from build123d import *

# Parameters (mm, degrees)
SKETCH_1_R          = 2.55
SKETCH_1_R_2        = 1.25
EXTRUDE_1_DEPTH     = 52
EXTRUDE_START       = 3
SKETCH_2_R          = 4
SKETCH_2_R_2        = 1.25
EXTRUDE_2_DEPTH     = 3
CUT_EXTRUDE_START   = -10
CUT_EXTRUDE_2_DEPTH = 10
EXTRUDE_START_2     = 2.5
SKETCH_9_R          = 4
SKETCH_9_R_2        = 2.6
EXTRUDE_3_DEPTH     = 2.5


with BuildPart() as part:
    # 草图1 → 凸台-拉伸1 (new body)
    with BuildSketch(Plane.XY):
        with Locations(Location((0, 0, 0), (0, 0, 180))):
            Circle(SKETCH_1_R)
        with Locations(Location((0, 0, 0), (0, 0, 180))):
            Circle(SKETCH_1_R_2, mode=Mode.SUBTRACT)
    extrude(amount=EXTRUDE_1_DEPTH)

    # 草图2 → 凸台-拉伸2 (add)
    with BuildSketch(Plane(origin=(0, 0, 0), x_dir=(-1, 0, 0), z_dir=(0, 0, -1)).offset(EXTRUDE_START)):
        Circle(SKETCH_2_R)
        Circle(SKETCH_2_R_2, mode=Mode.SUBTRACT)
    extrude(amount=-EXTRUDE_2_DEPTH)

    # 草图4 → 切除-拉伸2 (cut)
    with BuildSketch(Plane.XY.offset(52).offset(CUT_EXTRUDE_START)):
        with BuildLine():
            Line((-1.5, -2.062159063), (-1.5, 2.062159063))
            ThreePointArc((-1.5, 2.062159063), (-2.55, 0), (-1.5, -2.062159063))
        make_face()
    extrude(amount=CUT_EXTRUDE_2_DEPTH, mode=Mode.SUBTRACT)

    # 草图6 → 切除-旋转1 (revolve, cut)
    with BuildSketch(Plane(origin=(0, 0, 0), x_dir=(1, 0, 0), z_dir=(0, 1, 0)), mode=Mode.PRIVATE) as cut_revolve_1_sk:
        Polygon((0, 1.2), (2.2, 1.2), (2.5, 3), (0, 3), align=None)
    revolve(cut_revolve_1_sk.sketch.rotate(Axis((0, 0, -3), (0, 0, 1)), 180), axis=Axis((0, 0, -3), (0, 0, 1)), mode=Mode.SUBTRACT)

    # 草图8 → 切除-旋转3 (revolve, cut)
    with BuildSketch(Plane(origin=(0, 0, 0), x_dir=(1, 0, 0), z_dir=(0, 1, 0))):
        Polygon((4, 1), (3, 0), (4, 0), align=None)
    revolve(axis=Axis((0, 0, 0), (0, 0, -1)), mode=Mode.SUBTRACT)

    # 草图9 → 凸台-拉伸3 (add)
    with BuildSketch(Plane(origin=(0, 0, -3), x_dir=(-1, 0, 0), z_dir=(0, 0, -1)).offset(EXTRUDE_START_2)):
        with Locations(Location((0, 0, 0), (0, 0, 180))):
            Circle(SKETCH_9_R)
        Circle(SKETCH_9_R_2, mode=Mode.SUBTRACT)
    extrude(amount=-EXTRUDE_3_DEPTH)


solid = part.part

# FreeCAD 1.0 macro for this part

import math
import FreeCAD as App
import Part
import Sketcher

V = App.Vector


def add_polygon(sketch, points):
    """Adds a closed chain of lines whose ends are joined by coincident constraints."""
    first, n = sketch.GeometryCount, len(points)
    for a, b in zip(points, points[1:] + points[:1]):
        sketch.addGeometry(Part.LineSegment(App.Vector(*a, 0), App.Vector(*b, 0)), False)
    for i in range(n):
        sketch.addConstraint(Sketcher.Constraint("Coincident", first + i, 2, first + (i + 1) % n, 1))

doc = App.newDocument("Part")
body = doc.addObject("PartDesign::Body", "Body")

# Sketch on XY plane
sketch1 = body.newObject("Sketcher::SketchObject", "Sketch")
sketch1.AttachmentSupport = (doc.getObject("XY_Plane"), [""])
sketch1.MapMode = "FlatFace"
sketch1.addGeometry([
    Part.Circle(V(0, 0, 0), V(0, 0, 1), 2.5),
    Part.Circle(V(0, 0, 0), V(0, 0, 1), 1.2),
], False)
sketch1.addConstraint([
    Sketcher.Constraint("Coincident", 0, 3, -1, 1),
    Sketcher.Constraint("Coincident", 1, 3, -1, 1),
    Sketcher.Constraint("Diameter", 0, 5.1),
    Sketcher.Constraint("Diameter", 1, 2.5),
])
pad1 = body.newObject("PartDesign::Pad", "Pad")
pad1.Profile = sketch1
pad1.Length = 52

# Sketch on XY plane
sketch2 = body.newObject("Sketcher::SketchObject", "Sketch001")
sketch2.AttachmentSupport = (doc.getObject("XY_Plane"), [""])
sketch2.MapMode = "FlatFace"
sketch2.AttachmentOffset = App.Placement(V(0, 0, -3), App.Rotation())
sketch2.addGeometry([
    Part.Circle(V(0, 0, 0), V(0, 0, 1), 4),
    Part.Circle(V(0, 0, 0), V(0, 0, 1), 1.2),
], False)
sketch2.addConstraint([
    Sketcher.Constraint("Coincident", 0, 3, -1, 1),
    Sketcher.Constraint("Coincident", 1, 3, -1, 1),
    Sketcher.Constraint("Diameter", 0, 8.0),
    Sketcher.Constraint("Diameter", 1, 2.5),
])
pad2 = body.newObject("PartDesign::Pad", "Pad001")
pad2.Profile = sketch2
pad2.Length = 3

# Sketch on XY plane
sketch3 = body.newObject("Sketcher::SketchObject", "Sketch002")
sketch3.AttachmentSupport = (doc.getObject("XY_Plane"), [""])
sketch3.MapMode = "FlatFace"
sketch3.AttachmentOffset = App.Placement(V(0, 0, 42), App.Rotation())
sketch3.addGeometry([
    Part.LineSegment(V(-1.5, -2.1, 0), V(-1.5, 2.1, 0)),
    Part.ArcOfCircle(Part.Circle(V(0, 0, 0), V(0, 0, 1), 2.6), math.radians(126), math.radians(234)),
], False)
sketch3.addConstraint([
    Sketcher.Constraint("Coincident", 0, 1, 1, 2),
    Sketcher.Constraint("Coincident", 1, 1, 0, 2),
    Sketcher.Constraint("Vertical", 0),
    Sketcher.Constraint("Coincident", 1, 3, -1, 1),
    Sketcher.Constraint("Radius", 1, 2.55),
    Sketcher.Constraint("DistanceX", 0, 1, -1, 1, 1.5),
])
pocket1 = body.newObject("PartDesign::Pocket", "Pocket")
pocket1.Profile = sketch3
pocket1.Length = 10
pocket1.Reversed = True

# Sketch on XZ plane
sketch4 = body.newObject("Sketcher::SketchObject", "Sketch003")
sketch4.AttachmentSupport = (doc.getObject("XZ_Plane"), [""])
sketch4.MapMode = "FlatFace"
add_polygon(sketch4, [(0, -1.2), (2.2, -1.2), (2.5, -3), (0, -3)])  # lines 0-3
sketch4.addConstraint([
    Sketcher.Constraint("Horizontal", 0),
    Sketcher.Constraint("Horizontal", 2),
    Sketcher.Constraint("Vertical", 3),
    Sketcher.Constraint("PointOnObject", 2, 2, -2),
    Sketcher.Constraint("DistanceX", 0, 1, 0, 2, 2.2),
    Sketcher.Constraint("DistanceX", 2, 2, 2, 1, 2.5),
    Sketcher.Constraint("DistanceY", 3, 1, 3, 2, 1.8),
    Sketcher.Constraint("DistanceY", 1, 2, -1, 1, 3.0),
])
groove = body.newObject("PartDesign::Groove", "Groove")
groove.Profile = sketch4
groove.ReferenceAxis = (sketch4, ["V_Axis"])
groove.Angle = 360

# Sketch on XZ plane
sketch5 = body.newObject("Sketcher::SketchObject", "Sketch004")
sketch5.AttachmentSupport = (doc.getObject("XZ_Plane"), [""])
sketch5.MapMode = "FlatFace"
add_polygon(sketch5, [(4, -1), (3, 0), (4, 0)])  # lines 0-2
sketch5.addConstraint([
    Sketcher.Constraint("Horizontal", 1),
    Sketcher.Constraint("Vertical", 2),
    Sketcher.Constraint("PointOnObject", 0, 2, -1),
    Sketcher.Constraint("Equal", 1, 2),
    Sketcher.Constraint("DistanceX", 1, 1, 1, 2, 1.0),
    Sketcher.Constraint("DistanceX", -1, 1, 0, 2, 3.0),
])
groove2 = body.newObject("PartDesign::Groove", "Groove001")
groove2.Profile = sketch5
groove2.ReferenceAxis = (sketch5, ["V_Axis"])
groove2.Angle = 360

# Sketch on XY plane
sketch6 = body.newObject("Sketcher::SketchObject", "Sketch005")
sketch6.AttachmentSupport = (doc.getObject("XY_Plane"), [""])
sketch6.MapMode = "FlatFace"
sketch6.AttachmentOffset = App.Placement(V(0, 0, -5.5), App.Rotation())
sketch6.addGeometry([
    Part.Circle(V(0, 0, 0), V(0, 0, 1), 4),
    Part.Circle(V(0, 0, 0), V(0, 0, 1), 2.6),
], False)
sketch6.addConstraint([
    Sketcher.Constraint("Coincident", 0, 3, -1, 1),
    Sketcher.Constraint("Coincident", 1, 3, -1, 1),
    Sketcher.Constraint("Diameter", 0, 8.0),
    Sketcher.Constraint("Diameter", 1, 5.2),
])
pad3 = body.newObject("PartDesign::Pad", "Pad002")
pad3.Profile = sketch6
pad3.Length = 2.5

doc.recompute()
